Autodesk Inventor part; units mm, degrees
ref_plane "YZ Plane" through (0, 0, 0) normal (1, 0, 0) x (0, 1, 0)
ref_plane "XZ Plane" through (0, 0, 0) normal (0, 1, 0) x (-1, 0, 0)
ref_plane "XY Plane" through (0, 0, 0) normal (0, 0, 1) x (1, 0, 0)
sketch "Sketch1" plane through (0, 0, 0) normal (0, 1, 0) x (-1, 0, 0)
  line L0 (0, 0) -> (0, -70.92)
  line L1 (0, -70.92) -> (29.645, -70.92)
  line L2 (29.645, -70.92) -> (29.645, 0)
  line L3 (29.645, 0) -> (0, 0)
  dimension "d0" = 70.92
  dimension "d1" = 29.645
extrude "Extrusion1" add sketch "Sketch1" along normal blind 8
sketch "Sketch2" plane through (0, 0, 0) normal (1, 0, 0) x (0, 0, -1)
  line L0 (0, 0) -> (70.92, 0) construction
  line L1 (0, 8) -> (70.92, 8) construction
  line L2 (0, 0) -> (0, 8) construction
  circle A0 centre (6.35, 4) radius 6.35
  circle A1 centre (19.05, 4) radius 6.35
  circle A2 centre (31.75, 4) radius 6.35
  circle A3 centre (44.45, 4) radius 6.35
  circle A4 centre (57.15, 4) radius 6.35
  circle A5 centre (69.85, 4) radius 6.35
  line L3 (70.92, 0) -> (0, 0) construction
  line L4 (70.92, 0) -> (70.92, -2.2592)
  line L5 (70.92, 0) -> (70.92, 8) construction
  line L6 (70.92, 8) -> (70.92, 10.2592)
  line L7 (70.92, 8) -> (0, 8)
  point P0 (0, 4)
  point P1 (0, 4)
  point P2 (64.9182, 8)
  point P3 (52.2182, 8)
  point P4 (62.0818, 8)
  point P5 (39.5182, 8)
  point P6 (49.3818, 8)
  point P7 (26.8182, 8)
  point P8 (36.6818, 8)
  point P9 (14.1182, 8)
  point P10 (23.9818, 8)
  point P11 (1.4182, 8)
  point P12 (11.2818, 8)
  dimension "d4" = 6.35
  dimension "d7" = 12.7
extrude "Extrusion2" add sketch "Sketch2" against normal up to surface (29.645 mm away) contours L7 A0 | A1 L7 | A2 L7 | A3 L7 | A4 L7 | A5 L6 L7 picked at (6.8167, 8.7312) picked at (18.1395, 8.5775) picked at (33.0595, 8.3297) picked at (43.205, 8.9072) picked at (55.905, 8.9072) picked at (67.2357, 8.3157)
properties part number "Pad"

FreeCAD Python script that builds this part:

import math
import FreeCAD as App
import Part
import Sketcher

doc = App.newDocument("Part")
params = doc.addObject("Spreadsheet::Sheet", "Params")
for row, (alias, value) in enumerate([
    ("sketch1_height", "70.92 mm"),
    ("pad1_length", "8 mm"),
    ("sketch2_radius", "6.35 mm"),
    ("pad2_length", "29.645 mm"),
], start=1):
    params.set(f"A{row}", alias)
    params.set(f"B{row}", "=" + value)
    params.setAlias(f"B{row}", alias)

body = doc.addObject("PartDesign::Body", "Body")

sketch1 = body.newObject("Sketcher::SketchObject", "Sketch")
sketch1.AttachmentSupport = (doc.getObject("XZ_Plane"), [""])
sketch1.MapMode = "FlatFace"
sketch1.addGeometry([
    Part.LineSegment(App.Vector(-29.645, 0, 0), App.Vector(0, 0, 0)),
    Part.LineSegment(App.Vector(0, 0, 0), App.Vector(0, -70.92, 0)),
    Part.LineSegment(App.Vector(0, -70.92, 0), App.Vector(-29.645, -70.92, 0)),
    Part.LineSegment(App.Vector(-29.645, -70.92, 0), App.Vector(-29.645, 0, 0)),
], False)
sketch1.addConstraint([
    Sketcher.Constraint("Coincident", 0, 2, 1, 1),
    Sketcher.Constraint("Coincident", 1, 2, 2, 1),
    Sketcher.Constraint("Coincident", 2, 2, 3, 1),
    Sketcher.Constraint("Coincident", 3, 2, 0, 1),
    Sketcher.Constraint("Horizontal", 0),
    Sketcher.Constraint("Vertical", 1),
    Sketcher.Constraint("Horizontal", 2),
    Sketcher.Constraint("Vertical", 3),
    Sketcher.Constraint("Coincident", 0, 2, -1, 1),
    Sketcher.Constraint("DistanceY", 1, 2, 1, 1, 70.92),
    Sketcher.Constraint("DistanceX", 0, 1, 0, 2, 29.645),
])
sketch1.setExpression("Constraints[9]", "Params.sketch1_height")
pad1 = body.newObject("PartDesign::Pad", "Pad")
pad1.Profile = sketch1
pad1.setExpression("Length", "Params.pad1_length")
pad1.Reversed = True

sketch2 = body.newObject("Sketcher::SketchObject", "Sketch001")
sketch2.AttachmentSupport = (doc.getObject("YZ_Plane"), [""])
sketch2.MapMode = "FlatFace"
sketch2.addGeometry([
    Part.LineSegment(App.Vector(8, -1.418215, 0), App.Vector(8, -11.281785, 0)),
    Part.ArcOfCircle(Part.Circle(App.Vector(4, -6.35, 0), App.Vector(0, 0, 1), 6.35), math.radians(-50.955687), math.radians(50.955687)),
    Part.ArcOfCircle(Part.Circle(App.Vector(4, -19.05, 0), App.Vector(0, 0, 1), 6.35), math.radians(-50.955687), math.radians(50.955687)),
    Part.LineSegment(App.Vector(8, -14.118215, 0), App.Vector(8, -23.981785, 0)),
    Part.ArcOfCircle(Part.Circle(App.Vector(4, -31.75, 0), App.Vector(0, 0, 1), 6.35), math.radians(-50.955687), math.radians(50.955687)),
    Part.LineSegment(App.Vector(8, -26.818215, 0), App.Vector(8, -36.681785, 0)),
    Part.ArcOfCircle(Part.Circle(App.Vector(4, -44.45, 0), App.Vector(0, 0, 1), 6.35), math.radians(-50.955687), math.radians(50.955687)),
    Part.LineSegment(App.Vector(8, -39.518215, 0), App.Vector(8, -49.381785, 0)),
    Part.ArcOfCircle(Part.Circle(App.Vector(4, -57.15, 0), App.Vector(0, 0, 1), 6.35), math.radians(-50.955687), math.radians(50.955687)),
    Part.LineSegment(App.Vector(8, -52.218215, 0), App.Vector(8, -62.081785, 0)),
    Part.ArcOfCircle(Part.Circle(App.Vector(4, -69.85, 0), App.Vector(0, 0, 1), 6.35), math.radians(-9.700848), math.radians(50.955687)),
    Part.LineSegment(App.Vector(8, -64.918215, 0), App.Vector(8, -70.92, 0)),
    Part.LineSegment(App.Vector(8, -70.92, 0), App.Vector(10.2592, -70.92, 0)),
], False)
sketch2.addConstraint([
    Sketcher.Constraint("Coincident", 0, 1, 1, 2),
    Sketcher.Constraint("Coincident", 1, 1, 0, 2),
    Sketcher.Constraint("Coincident", 2, 1, 3, 2),
    Sketcher.Constraint("Coincident", 3, 1, 2, 2),
    Sketcher.Constraint("Coincident", 4, 1, 5, 2),
    Sketcher.Constraint("Coincident", 5, 1, 4, 2),
    Sketcher.Constraint("Coincident", 6, 1, 7, 2),
    Sketcher.Constraint("Coincident", 7, 1, 6, 2),
    Sketcher.Constraint("Coincident", 8, 1, 9, 2),
    Sketcher.Constraint("Coincident", 9, 1, 8, 2),
    Sketcher.Constraint("Coincident", 10, 2, 11, 1),
    Sketcher.Constraint("Coincident", 11, 2, 12, 1),
    Sketcher.Constraint("Coincident", 12, 2, 10, 1),
    Sketcher.Constraint("Vertical", 0),
    Sketcher.Constraint("Vertical", 3),
    Sketcher.Constraint("Vertical", 5),
    Sketcher.Constraint("Vertical", 7),
    Sketcher.Constraint("Vertical", 9),
    Sketcher.Constraint("Vertical", 11),
    Sketcher.Constraint("Horizontal", 12),
    Sketcher.Constraint("Equal", 1, 2),
    Sketcher.Constraint("Equal", 2, 4),
    Sketcher.Constraint("Equal", 4, 6),
    Sketcher.Constraint("Equal", 6, 8),
    Sketcher.Constraint("Equal", 8, 10),
    Sketcher.Constraint("Vertical", 1, 3, 2, 3),
    Sketcher.Constraint("Vertical", 2, 3, 4, 3),
    Sketcher.Constraint("Vertical", 4, 3, 6, 3),
    Sketcher.Constraint("Vertical", 6, 3, 8, 3),
    Sketcher.Constraint("Vertical", 8, 3, 10, 3),
    Sketcher.Constraint("Vertical", 1, 1, 2, 1),
    Sketcher.Constraint("Vertical", 3, 1, 4, 1),
    Sketcher.Constraint("Vertical", 5, 1, 6, 1),
    Sketcher.Constraint("Vertical", 7, 1, 8, 1),
    Sketcher.Constraint("Vertical", 9, 1, 10, 2),
    Sketcher.Constraint("Radius", 1, 6.35),
    Sketcher.Constraint("DistanceY", 2, 3, 1, 3, 12.7),
    Sketcher.Constraint("DistanceY", 4, 3, 2, 3, 12.7),
    Sketcher.Constraint("DistanceY", 6, 3, 4, 3, 12.7),
    Sketcher.Constraint("DistanceY", 8, 3, 6, 3, 12.7),
    Sketcher.Constraint("DistanceY", 10, 3, 8, 3, 12.7),
    Sketcher.Constraint("DistanceY", 1, 3, -1, 1, 6.35),
    Sketcher.Constraint("DistanceX", -1, 1, 1, 3, 4.0),
    Sketcher.Constraint("DistanceX", -1, 1, 0, 1, 8.0),
    Sketcher.Constraint("DistanceY", 11, 2, -1, 1, 70.92),
])
sketch2.setExpression("Constraints[35]", "Params.sketch2_radius")
pad2 = body.newObject("PartDesign::Pad", "Pad001")
pad2.Profile = sketch2
pad2.setExpression("Length", "Params.pad2_length")
pad2.Reversed = True

doc.recompute()
